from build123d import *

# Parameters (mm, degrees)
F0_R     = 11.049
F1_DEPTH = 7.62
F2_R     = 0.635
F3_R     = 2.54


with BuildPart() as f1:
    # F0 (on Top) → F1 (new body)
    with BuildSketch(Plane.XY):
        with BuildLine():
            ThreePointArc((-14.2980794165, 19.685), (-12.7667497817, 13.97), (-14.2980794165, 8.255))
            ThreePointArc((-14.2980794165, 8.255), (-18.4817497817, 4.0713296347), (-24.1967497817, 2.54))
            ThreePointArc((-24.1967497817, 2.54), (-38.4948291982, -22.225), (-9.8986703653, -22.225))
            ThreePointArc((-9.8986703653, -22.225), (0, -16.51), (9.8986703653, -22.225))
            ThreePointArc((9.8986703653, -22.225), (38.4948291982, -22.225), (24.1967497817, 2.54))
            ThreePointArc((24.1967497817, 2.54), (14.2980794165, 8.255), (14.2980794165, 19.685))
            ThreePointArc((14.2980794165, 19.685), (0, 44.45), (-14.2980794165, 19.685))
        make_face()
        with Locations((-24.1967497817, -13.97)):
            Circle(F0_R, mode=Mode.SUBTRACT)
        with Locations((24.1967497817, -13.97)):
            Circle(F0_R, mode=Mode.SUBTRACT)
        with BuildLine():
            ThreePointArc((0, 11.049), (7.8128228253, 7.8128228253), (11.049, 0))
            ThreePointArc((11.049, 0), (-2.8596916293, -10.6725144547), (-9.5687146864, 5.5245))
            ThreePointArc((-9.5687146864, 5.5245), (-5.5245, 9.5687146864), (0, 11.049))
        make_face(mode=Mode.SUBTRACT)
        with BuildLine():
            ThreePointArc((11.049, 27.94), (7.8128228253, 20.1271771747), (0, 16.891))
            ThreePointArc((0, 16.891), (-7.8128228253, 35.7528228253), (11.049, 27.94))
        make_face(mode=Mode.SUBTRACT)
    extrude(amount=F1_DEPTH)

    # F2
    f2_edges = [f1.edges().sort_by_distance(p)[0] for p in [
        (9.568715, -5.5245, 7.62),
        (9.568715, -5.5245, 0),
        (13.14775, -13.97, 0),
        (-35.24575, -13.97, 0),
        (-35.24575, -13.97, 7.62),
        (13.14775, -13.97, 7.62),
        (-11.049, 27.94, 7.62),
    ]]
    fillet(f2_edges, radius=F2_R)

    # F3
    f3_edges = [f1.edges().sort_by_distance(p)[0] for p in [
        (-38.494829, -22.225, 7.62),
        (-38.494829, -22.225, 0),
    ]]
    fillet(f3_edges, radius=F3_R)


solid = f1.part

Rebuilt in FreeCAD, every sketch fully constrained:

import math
import FreeCAD as App
import Part
import Sketcher
from FreeCAD import Vector
Q = App.Units.Quantity


def edges_at(feature, points):
    """Names of the edges that pass closest to the given points."""
    edges = feature.Shape.Edges
    near = lambda p: min(range(len(edges)), key=lambda i: edges[i].distToShape(Part.Vertex(*p))[0])
    return sorted({f"Edge{near(p) + 1}" for p in points})

doc = App.newDocument("Part")
params = doc.addObject("Spreadsheet::Sheet", "Params")
for row, (alias, value) in enumerate([
    ("sketch1_diameter", "0.87 in"),
    ("sketch1_radius", "0.45 in"),
    ("sketch1_radius2", "0.65 in"),
    ("pad1_length", "0.3 in"),
    ("fillet_radius", "0.025 in"),
    ("fillet2_radius", "0.1 in"),
], start=1):
    params.set(f"A{row}", alias)
    params.set(f"B{row}", "=" + value)
    params.setAlias(f"B{row}", alias)

body = doc.addObject("PartDesign::Body", "Body")

# Sketch on XY plane
sketch1 = body.newObject("Sketcher::SketchObject", "Sketch")
sketch1.AttachmentSupport = (doc.getObject("XY_Plane"), [""])
sketch1.MapMode = "FlatFace"
sketch1.addGeometry([
    Part.ArcOfCircle(Part.Circle(Vector(-24, 14, 0), Vector(0, 0, 1), 11), math.radians(-30), math.radians(30)),  # 0
    Part.ArcOfCircle(Part.Circle(Vector(-24, 14, 0), Vector(0, 0, 1), 11), math.radians(-90), math.radians(-30)),  # 1
    Part.ArcOfCircle(Part.Circle(Vector(-24, -14, 0), Vector(0, 0, 1), 17), math.radians(90), math.radians(330)),  # 2
    Part.ArcOfCircle(Part.Circle(Vector(0, -28, 0), Vector(0, 0, 1), 11), math.radians(30), math.radians(150)),  # 3
    Part.ArcOfCircle(Part.Circle(Vector(24, -14, 0), Vector(0, 0, 1), 17), math.radians(-150), math.radians(90)),  # 4
    Part.ArcOfCircle(Part.Circle(Vector(24, 14, 0), Vector(0, 0, 1), 11), math.radians(150), math.radians(270)),  # 5
    Part.ArcOfCircle(Part.Circle(Vector(0, 28, 0), Vector(0, 0, 1), 17), math.radians(-30), math.radians(210)),  # 6
    Part.Circle(Vector(-24, -14, 0), Vector(0, 0, 1), 11),  # 7
    Part.Circle(Vector(24, -14, 0), Vector(0, 0, 1), 11),  # 8
    Part.ArcOfCircle(Part.Circle(Vector(0, 0, 0), Vector(0, 0, 1), 11), math.radians(90), math.radians(360)),  # 9
    Part.ArcOfCircle(Part.Circle(Vector(0, 0, 0), Vector(0, 0, 1), 11), math.radians(0), math.radians(90)),  # 10
    Part.ArcOfCircle(Part.Circle(Vector(0, 28, 0), Vector(0, 0, 1), 11), math.radians(0), math.radians(270)),  # 11
    Part.ArcOfCircle(Part.Circle(Vector(0, 28, 0), Vector(0, 0, 1), 11), math.radians(-90), math.radians(0)),  # 12
], False)
sketch1.addConstraint([
    Sketcher.Constraint("Tangent", 0, 1, 1, 2),
    Sketcher.Constraint("Tangent", 1, 1, 2, 1),
    Sketcher.Constraint("Tangent", 2, 2, 3, 2),
    Sketcher.Constraint("Tangent", 3, 1, 4, 1),
    Sketcher.Constraint("Tangent", 4, 2, 5, 2),
    Sketcher.Constraint("Tangent", 5, 1, 6, 1),
    Sketcher.Constraint("Tangent", 6, 2, 0, 2),
    Sketcher.Constraint("Tangent", 9, 1, 10, 2),
    Sketcher.Constraint("Coincident", 10, 1, 9, 2),
    Sketcher.Constraint("Tangent", 11, 1, 12, 2),
    Sketcher.Constraint("Coincident", 12, 1, 11, 2),
    Sketcher.Constraint("Coincident", 9, 3, -1, 1),
    Sketcher.Constraint("Coincident", 7, 3, 2, 3),
    Sketcher.Constraint("Coincident", 8, 3, 4, 3),
    Sketcher.Constraint("Coincident", 11, 3, 6, 3),
    Sketcher.Constraint("Equal", 0, 1),
    Sketcher.Constraint("Equal", 1, 3),
    Sketcher.Constraint("Equal", 2, 4),
    Sketcher.Constraint("Equal", 3, 5),
    Sketcher.Constraint("Equal", 4, 6),
    Sketcher.Constraint("Equal", 7, 8),
    Sketcher.Constraint("Equal", 8, 9),
    Sketcher.Constraint("Equal", 10, 11),
    Sketcher.Constraint("Symmetric", 0, 3, 4, 3, -1, 1),
    Sketcher.Constraint("Symmetric", 2, 3, 4, 3, -2),
    Sketcher.Constraint("PointOnObject", 6, 3, -2),
    Sketcher.Constraint("PointOnObject", 9, 1, -2),
    Sketcher.Constraint("PointOnObject", 10, 1, -1),
    Sketcher.Constraint("PointOnObject", 12, 1, -2),
    Sketcher.Constraint("Horizontal", 12, 3, 11, 1),
    Sketcher.Constraint("Vertical", 0, 1, 6, 2),
    Sketcher.Constraint("Diameter", 7, Q("0.87 in")),
    Sketcher.Constraint("Radius", 0, Q("0.45 in")),
    Sketcher.Constraint("Radius", 2, Q("0.65 in")),
    Sketcher.Constraint("DistanceY", 3, 3, -1, 1, Q("1.1 in")),
])
sketch1.setExpression("Constraints[31]", "Params.sketch1_diameter")
sketch1.setExpression("Constraints[32]", "Params.sketch1_radius")
sketch1.setExpression("Constraints[33]", "Params.sketch1_radius2")
pad1 = body.newObject("PartDesign::Pad", "Pad")
pad1.Profile = sketch1
pad1.setExpression("Length", "Params.pad1_length")
doc.recompute()

fillet = body.newObject("PartDesign::Fillet", "Fillet")
fillet.Base = (pad1, edges_at(pad1, [
    (-7.813, -7.813, 7.62),
    (-7.813, -7.813, 0),
    (13.148, -13.97, 0),
    (-35.246, -13.97, 0),
    (-35.246, -13.97, 7.62),
    (13.148, -13.97, 7.62),
    (-7.813, 35.753, 7.62),
]))
fillet.setExpression("Radius", "Params.fillet_radius")
doc.recompute()

fillet2 = body.newObject("PartDesign::Fillet", "Fillet001")
fillet2.Base = (fillet, edges_at(fillet, [(-38.495, -22.225, 7.62), (-38.495, -22.225, 0)]))
fillet2.setExpression("Radius", "Params.fillet2_radius")

doc.recompute()
